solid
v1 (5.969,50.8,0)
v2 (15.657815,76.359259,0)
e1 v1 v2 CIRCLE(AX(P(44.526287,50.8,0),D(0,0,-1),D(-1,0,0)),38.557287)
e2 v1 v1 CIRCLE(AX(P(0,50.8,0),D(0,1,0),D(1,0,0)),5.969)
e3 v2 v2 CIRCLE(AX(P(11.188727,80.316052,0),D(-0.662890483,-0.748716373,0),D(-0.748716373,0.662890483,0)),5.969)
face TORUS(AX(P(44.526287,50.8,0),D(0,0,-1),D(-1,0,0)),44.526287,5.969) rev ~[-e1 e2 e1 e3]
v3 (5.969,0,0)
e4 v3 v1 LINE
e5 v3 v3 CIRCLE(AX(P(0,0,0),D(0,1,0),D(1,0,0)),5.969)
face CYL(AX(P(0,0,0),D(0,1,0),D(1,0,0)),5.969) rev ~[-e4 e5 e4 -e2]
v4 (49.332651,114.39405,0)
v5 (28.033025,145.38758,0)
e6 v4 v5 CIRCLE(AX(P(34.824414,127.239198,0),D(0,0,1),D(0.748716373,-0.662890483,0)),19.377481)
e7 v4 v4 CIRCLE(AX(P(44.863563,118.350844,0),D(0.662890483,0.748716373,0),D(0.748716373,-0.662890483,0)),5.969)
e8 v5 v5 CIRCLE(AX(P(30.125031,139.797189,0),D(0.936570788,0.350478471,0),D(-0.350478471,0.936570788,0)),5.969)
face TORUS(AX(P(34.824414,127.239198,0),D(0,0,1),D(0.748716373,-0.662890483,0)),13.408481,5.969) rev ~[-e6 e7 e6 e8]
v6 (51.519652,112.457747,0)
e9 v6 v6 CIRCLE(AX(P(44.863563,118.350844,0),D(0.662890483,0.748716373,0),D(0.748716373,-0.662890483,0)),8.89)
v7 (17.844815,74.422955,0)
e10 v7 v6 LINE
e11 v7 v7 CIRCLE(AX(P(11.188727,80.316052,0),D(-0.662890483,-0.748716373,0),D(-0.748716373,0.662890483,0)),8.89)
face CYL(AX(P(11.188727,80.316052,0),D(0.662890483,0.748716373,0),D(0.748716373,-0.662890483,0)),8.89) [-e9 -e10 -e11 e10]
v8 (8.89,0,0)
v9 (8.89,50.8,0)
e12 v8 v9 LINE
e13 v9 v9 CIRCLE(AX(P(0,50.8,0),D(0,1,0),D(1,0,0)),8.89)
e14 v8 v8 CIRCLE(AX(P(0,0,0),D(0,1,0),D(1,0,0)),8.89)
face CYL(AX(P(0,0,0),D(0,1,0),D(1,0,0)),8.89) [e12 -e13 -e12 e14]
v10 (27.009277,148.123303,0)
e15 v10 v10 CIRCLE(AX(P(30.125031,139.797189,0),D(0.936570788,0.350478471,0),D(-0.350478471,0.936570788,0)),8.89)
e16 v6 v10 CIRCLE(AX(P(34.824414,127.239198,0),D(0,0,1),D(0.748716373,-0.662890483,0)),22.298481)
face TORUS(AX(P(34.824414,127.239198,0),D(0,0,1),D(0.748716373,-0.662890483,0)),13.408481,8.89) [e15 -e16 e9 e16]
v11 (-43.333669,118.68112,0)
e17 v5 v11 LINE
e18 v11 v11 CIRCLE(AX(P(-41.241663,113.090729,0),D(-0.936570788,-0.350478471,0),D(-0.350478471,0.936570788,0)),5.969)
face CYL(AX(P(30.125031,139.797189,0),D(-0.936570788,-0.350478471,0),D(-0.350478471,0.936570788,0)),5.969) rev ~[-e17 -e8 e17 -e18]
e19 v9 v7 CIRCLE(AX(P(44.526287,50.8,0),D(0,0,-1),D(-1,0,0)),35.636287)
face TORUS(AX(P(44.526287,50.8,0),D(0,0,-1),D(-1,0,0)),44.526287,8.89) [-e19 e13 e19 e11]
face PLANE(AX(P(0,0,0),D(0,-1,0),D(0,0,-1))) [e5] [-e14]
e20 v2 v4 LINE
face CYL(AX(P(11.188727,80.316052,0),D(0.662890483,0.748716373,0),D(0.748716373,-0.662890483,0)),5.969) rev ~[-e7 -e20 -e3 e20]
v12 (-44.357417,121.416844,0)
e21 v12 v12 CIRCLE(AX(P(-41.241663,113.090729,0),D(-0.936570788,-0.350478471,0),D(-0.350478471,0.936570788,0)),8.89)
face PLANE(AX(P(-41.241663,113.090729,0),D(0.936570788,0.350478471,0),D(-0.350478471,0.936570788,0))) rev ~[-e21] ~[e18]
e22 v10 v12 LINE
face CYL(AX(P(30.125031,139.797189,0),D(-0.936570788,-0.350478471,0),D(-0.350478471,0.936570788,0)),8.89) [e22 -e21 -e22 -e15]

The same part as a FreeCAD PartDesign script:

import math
import FreeCAD as App
import Part
import Sketcher

V = App.Vector
Q = App.Units.Quantity

doc = App.newDocument("Part")
body = doc.addObject("PartDesign::Body", "Body")

sketch1 = body.newObject("Sketcher::SketchObject", "Sketch")
sketch1.AttachmentSupport = (doc.getObject("XZ_Plane"), [""])
sketch1.MapMode = "FlatFace"
sketch1.addGeometry(Part.Circle(V(0, 0, 0), V(0, 0, 1), 9), False)
sketch1.addGeometry(Part.Circle(V(0, 0, 0), V(0, 0, 1), 6), False)
sketch1.addConstraint(Sketcher.Constraint("Coincident", 0, 3, -1, 1))
sketch1.addConstraint(Sketcher.Constraint("Coincident", 1, 3, -1, 1))
sketch1.addConstraint(Sketcher.Constraint("Diameter", 0, Q("0.7 in")))
sketch1.addConstraint(Sketcher.Constraint("Diameter", 1, Q("0.47 in")))

sketch2 = body.newObject("Sketcher::SketchObject", "Sketch001")
sketch2.AttachmentSupport = (doc.getObject("XY_Plane"), [""])
sketch2.MapMode = "FlatFace"
sketch2.addGeometry(Part.LineSegment(V(0, 0, 0), V(0, 51, 0)), False)
sketch2.addGeometry(Part.ArcOfCircle(Part.Circle(V(45, 51, 0), V(0, 0, 1), 45), math.radians(138), math.radians(180)), False)
sketch2.addGeometry(Part.LineSegment(V(11, 80, 0), V(45, 118, 0)), False)
sketch2.addGeometry(Part.ArcOfCircle(Part.Circle(V(35, 127, 0), V(0, 0, 1), 13), math.radians(-42), math.radians(111)), False)
sketch2.addGeometry(Part.LineSegment(V(30, 140, 0), V(-41, 113, 0)), False)
sketch2.addConstraint(Sketcher.Constraint("Tangent", 0, 2, 1, 2))
sketch2.addConstraint(Sketcher.Constraint("Tangent", 1, 1, 2, 1))
sketch2.addConstraint(Sketcher.Constraint("Tangent", 2, 2, 3, 1))
sketch2.addConstraint(Sketcher.Constraint("Tangent", 3, 2, 4, 1))
sketch2.addConstraint(Sketcher.Constraint("Vertical", 0))
sketch2.addConstraint(Sketcher.Constraint("Coincident", 0, 1, -1, 1))
sketch2.addConstraint(Sketcher.Constraint("DistanceY", 0, 1, 0, 2, Q("2 in")))
sketch2.addConstraint(Sketcher.Constraint("Distance", 2, Q("2 in")))
sketch2.addConstraint(Sketcher.Constraint("Distance", 4, Q("3 in")))
sketch2.addConstraint(Sketcher.Constraint("Radius", 3, Q("13.408481 mm")))
sketch2.addConstraint(Sketcher.Constraint("Radius", 1, Q("44.526287 mm")))
sketch2.addConstraint(Sketcher.Constraint("DistanceY", -1, 1, 1, 1, Q("80.316052 mm")))
sketch2.addConstraint(Sketcher.Constraint("DistanceX", -1, 1, 3, 2, Q("30.125031 mm")))
doc.recompute()

additivepipe = body.newObject("PartDesign::AdditivePipe", "AdditivePipe")
additivepipe.Profile = sketch1
additivepipe.Spine = (sketch2, ["Edge1", "Edge2", "Edge3", "Edge4", "Edge5"])

doc.recompute()
